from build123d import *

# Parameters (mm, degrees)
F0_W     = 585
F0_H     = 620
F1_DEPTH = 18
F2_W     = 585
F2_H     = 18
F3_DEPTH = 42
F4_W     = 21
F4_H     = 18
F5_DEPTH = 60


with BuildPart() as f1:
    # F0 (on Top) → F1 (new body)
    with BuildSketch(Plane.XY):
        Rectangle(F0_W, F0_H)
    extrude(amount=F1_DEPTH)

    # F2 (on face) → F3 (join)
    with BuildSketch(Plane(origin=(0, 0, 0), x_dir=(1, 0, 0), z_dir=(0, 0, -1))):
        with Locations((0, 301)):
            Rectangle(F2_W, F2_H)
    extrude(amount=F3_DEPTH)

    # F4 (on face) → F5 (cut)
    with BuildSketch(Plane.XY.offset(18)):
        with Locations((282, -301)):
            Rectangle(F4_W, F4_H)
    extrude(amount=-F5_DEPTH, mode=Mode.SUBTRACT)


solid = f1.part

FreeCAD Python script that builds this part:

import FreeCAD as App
import Part
import Sketcher

V = App.Vector

doc = App.newDocument("Part")
params = doc.addObject("Spreadsheet::Sheet", "Params")
for row, (alias, value) in enumerate([
    ("sketch1_width", "585 mm"),
    ("sketch1_height", "620 mm"),
    ("pad1_length", "18 mm"),
    ("sketch2_width", "585 mm"),
    ("sketch2_height", "18 mm"),
    ("pad2_length", "42 mm"),
    ("sketch3_width", "21 mm"),
    ("sketch3_height", "18 mm"),
    ("pocket1_length", "60 mm"),
], start=1):
    params.set(f"A{row}", alias)
    params.set(f"B{row}", "=" + value)
    params.setAlias(f"B{row}", alias)

body = doc.addObject("PartDesign::Body", "Body")

# Sketch on XY plane
sketch1 = body.newObject("Sketcher::SketchObject", "Sketch")
sketch1.AttachmentSupport = (doc.getObject("XY_Plane"), [""])
sketch1.MapMode = "FlatFace"
sketch1.addGeometry([
    Part.LineSegment(V(-292, 310, 0), V(-292, -310, 0)),
    Part.LineSegment(V(-292, -310, 0), V(292, -310, 0)),
    Part.LineSegment(V(292, -310, 0), V(292, 310, 0)),
    Part.LineSegment(V(292, 310, 0), V(-292, 310, 0)),
], False)
sketch1.addConstraint([
    Sketcher.Constraint("Coincident", 0, 2, 1, 1),
    Sketcher.Constraint("Coincident", 1, 2, 2, 1),
    Sketcher.Constraint("Coincident", 2, 2, 3, 1),
    Sketcher.Constraint("Coincident", 3, 2, 0, 1),
    Sketcher.Constraint("Vertical", 0),
    Sketcher.Constraint("Horizontal", 1),
    Sketcher.Constraint("Vertical", 2),
    Sketcher.Constraint("Horizontal", 3),
    Sketcher.Constraint("Symmetric", 0, 2, 2, 2, -1, 1),
    Sketcher.Constraint("DistanceX", 1, 1, 1, 2, 585.0),
    Sketcher.Constraint("DistanceY", 0, 2, 0, 1, 620.0),
])
sketch1.setExpression("Constraints[9]", "Params.sketch1_width")
sketch1.setExpression("Constraints[10]", "Params.sketch1_height")
pad1 = body.newObject("PartDesign::Pad", "Pad")
pad1.Profile = sketch1
pad1.setExpression("Length", "Params.pad1_length")

# Sketch on XY plane
sketch2 = body.newObject("Sketcher::SketchObject", "Sketch001")
sketch2.AttachmentSupport = (doc.getObject("XY_Plane"), [""])
sketch2.MapMode = "FlatFace"
sketch2.addGeometry([
    Part.LineSegment(V(-292, -310, 0), V(-292, -292, 0)),
    Part.LineSegment(V(-292, -292, 0), V(292, -292, 0)),
    Part.LineSegment(V(292, -292, 0), V(292, -310, 0)),
    Part.LineSegment(V(292, -310, 0), V(-292, -310, 0)),
], False)
sketch2.addConstraint([
    Sketcher.Constraint("Coincident", 0, 2, 1, 1),
    Sketcher.Constraint("Coincident", 1, 2, 2, 1),
    Sketcher.Constraint("Coincident", 2, 2, 3, 1),
    Sketcher.Constraint("Coincident", 3, 2, 0, 1),
    Sketcher.Constraint("Vertical", 0),
    Sketcher.Constraint("Horizontal", 1),
    Sketcher.Constraint("Vertical", 2),
    Sketcher.Constraint("Horizontal", 3),
    Sketcher.Constraint("DistanceX", 1, 1, 1, 2, 585.0),
    Sketcher.Constraint("DistanceY", 0, 1, 0, 2, 18.0),
    Sketcher.Constraint("DistanceY", 0, 2, -1, 1, 292.0),
    Sketcher.Constraint("DistanceX", 0, 2, -1, 1, 292.5),
])
sketch2.setExpression("Constraints[8]", "Params.sketch2_width")
sketch2.setExpression("Constraints[9]", "Params.sketch2_height")
pad2 = body.newObject("PartDesign::Pad", "Pad001")
pad2.Profile = sketch2
pad2.setExpression("Length", "Params.pad2_length")
pad2.Reversed = True

# Sketch on XY plane
sketch3 = body.newObject("Sketcher::SketchObject", "Sketch002")
sketch3.AttachmentSupport = (doc.getObject("XY_Plane"), [""])
sketch3.MapMode = "FlatFace"
sketch3.AttachmentOffset = App.Placement(V(0, 0, 18), App.Rotation())
sketch3.addGeometry([
    Part.LineSegment(V(272, -292, 0), V(272, -310, 0)),
    Part.LineSegment(V(272, -310, 0), V(292, -310, 0)),
    Part.LineSegment(V(292, -310, 0), V(292, -292, 0)),
    Part.LineSegment(V(292, -292, 0), V(272, -292, 0)),
], False)
sketch3.addConstraint([
    Sketcher.Constraint("Coincident", 0, 2, 1, 1),
    Sketcher.Constraint("Coincident", 1, 2, 2, 1),
    Sketcher.Constraint("Coincident", 2, 2, 3, 1),
    Sketcher.Constraint("Coincident", 3, 2, 0, 1),
    Sketcher.Constraint("Vertical", 0),
    Sketcher.Constraint("Horizontal", 1),
    Sketcher.Constraint("Vertical", 2),
    Sketcher.Constraint("Horizontal", 3),
    Sketcher.Constraint("DistanceX", 1, 1, 1, 2, 21.0),
    Sketcher.Constraint("DistanceY", 0, 2, 0, 1, 18.0),
    Sketcher.Constraint("DistanceY", 0, 2, -1, 1, 310.0),
    Sketcher.Constraint("DistanceX", -1, 1, 0, 2, 271.5),
])
sketch3.setExpression("Constraints[8]", "Params.sketch3_width")
sketch3.setExpression("Constraints[9]", "Params.sketch3_height")
pocket1 = body.newObject("PartDesign::Pocket", "Pocket")
pocket1.Profile = sketch3
pocket1.setExpression("Length", "Params.pocket1_length")

doc.recompute()
